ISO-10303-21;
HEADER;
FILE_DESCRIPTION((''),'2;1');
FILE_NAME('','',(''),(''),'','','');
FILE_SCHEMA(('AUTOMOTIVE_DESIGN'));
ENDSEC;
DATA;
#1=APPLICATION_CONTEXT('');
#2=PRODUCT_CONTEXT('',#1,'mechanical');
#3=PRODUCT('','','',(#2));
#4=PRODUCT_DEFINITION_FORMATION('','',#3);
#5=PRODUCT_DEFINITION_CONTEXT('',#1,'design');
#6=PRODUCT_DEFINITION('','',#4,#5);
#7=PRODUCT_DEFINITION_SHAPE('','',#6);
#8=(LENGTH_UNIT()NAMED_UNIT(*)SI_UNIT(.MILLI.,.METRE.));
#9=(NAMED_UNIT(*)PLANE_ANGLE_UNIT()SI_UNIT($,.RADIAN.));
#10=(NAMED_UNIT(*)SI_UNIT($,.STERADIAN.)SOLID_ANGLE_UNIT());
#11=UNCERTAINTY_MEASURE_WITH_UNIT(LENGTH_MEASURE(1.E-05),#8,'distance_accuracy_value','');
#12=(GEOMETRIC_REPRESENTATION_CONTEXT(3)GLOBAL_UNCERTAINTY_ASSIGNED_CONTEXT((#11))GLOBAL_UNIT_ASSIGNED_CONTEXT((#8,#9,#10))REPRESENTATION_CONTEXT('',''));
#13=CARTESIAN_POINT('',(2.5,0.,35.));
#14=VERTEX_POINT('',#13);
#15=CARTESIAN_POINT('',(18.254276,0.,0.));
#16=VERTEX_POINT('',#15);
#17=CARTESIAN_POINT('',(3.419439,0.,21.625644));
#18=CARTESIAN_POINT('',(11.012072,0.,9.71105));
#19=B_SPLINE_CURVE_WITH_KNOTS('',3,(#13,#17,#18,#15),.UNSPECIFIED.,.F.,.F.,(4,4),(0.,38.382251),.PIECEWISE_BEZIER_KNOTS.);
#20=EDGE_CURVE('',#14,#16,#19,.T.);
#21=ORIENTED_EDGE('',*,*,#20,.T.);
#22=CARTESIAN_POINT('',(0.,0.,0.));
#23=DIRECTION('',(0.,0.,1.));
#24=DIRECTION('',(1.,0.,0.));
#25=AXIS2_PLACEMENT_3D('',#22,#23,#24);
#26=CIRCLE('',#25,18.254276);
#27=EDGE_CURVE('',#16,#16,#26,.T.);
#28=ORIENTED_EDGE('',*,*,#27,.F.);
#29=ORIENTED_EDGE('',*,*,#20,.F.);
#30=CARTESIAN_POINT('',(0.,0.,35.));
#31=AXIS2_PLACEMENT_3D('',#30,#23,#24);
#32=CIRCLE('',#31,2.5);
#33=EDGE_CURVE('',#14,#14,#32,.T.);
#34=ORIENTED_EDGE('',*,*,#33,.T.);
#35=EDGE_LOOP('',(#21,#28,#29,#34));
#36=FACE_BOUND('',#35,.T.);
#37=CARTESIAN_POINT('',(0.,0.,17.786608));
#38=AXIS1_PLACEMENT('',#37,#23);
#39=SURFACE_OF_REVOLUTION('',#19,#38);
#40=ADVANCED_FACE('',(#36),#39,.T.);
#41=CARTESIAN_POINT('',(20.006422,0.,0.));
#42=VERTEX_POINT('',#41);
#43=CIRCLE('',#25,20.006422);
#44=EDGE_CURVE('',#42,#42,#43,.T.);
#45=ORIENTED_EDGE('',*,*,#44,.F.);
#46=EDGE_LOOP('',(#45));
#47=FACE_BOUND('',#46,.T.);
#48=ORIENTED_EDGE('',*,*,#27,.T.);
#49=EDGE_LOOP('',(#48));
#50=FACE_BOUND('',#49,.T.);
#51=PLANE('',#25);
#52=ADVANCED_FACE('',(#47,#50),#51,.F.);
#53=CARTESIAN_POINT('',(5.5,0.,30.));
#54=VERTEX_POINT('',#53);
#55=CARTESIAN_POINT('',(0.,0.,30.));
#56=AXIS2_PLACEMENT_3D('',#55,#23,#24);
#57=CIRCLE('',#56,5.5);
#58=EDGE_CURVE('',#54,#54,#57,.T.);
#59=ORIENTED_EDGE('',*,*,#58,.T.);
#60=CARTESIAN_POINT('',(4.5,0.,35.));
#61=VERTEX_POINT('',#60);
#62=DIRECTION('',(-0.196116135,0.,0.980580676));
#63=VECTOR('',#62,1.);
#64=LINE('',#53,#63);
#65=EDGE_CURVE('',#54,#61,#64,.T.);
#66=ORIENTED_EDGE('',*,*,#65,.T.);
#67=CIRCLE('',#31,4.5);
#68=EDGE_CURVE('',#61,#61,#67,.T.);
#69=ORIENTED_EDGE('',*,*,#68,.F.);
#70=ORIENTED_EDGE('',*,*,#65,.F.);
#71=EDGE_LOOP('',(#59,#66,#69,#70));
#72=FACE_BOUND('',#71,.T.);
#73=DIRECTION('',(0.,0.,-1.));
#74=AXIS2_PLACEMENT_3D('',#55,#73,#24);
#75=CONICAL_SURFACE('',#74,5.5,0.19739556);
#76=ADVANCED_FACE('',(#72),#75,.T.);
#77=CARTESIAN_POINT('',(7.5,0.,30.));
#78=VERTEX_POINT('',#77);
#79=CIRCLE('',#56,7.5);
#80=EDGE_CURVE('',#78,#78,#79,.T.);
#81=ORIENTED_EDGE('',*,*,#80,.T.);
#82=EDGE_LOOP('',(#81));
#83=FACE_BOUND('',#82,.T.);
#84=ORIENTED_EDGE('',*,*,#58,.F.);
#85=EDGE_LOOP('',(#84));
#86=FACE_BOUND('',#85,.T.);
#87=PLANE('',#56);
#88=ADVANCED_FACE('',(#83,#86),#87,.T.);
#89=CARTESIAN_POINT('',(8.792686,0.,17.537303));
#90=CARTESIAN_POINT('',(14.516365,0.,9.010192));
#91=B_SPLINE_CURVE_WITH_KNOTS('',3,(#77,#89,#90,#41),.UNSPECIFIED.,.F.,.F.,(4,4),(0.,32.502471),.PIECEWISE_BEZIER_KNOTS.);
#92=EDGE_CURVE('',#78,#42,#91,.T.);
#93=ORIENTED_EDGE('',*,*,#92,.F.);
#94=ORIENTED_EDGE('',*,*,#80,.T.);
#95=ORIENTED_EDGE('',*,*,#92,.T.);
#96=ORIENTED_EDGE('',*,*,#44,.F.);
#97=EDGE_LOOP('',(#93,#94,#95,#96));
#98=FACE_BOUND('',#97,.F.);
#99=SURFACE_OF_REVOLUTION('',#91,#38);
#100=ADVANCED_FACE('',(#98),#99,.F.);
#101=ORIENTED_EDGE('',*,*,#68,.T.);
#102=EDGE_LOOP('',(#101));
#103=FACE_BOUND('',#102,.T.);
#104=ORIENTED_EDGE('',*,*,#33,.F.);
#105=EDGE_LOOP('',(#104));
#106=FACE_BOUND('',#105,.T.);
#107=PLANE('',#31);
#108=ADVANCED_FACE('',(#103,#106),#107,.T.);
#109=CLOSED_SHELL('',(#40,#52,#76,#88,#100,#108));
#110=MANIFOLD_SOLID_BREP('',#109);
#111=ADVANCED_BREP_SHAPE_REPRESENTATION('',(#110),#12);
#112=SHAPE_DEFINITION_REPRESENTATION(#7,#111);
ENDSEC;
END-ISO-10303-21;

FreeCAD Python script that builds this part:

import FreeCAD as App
import Part
import Sketcher

doc = App.newDocument("Part")
body = doc.addObject("PartDesign::Body", "Body")

# Sketch on XZ plane
sketch1 = body.newObject("Sketcher::SketchObject", "Sketch")
sketch1.AttachmentSupport = (doc.getObject("XZ_Plane"), [""])
sketch1.MapMode = "FlatFace"
sketch1.addGeometry(Part.BSplineCurve([App.Vector(7.5, 30, 0), App.Vector(8.792686, 17.537303, 0), App.Vector(14.516365, 9.010192, 0), App.Vector(20.006422, 0, 0)], [4, 4], [0, 32.502471], False, 3, [1, 1, 1, 1], False), False)
sketch1.addGeometry(Part.LineSegment(App.Vector(7.5, 30, 0), App.Vector(5.5, 30, 0)), False)
sketch1.addGeometry(Part.LineSegment(App.Vector(5.5, 30, 0), App.Vector(4.5, 35, 0)), False)
sketch1.addGeometry(Part.LineSegment(App.Vector(4.5, 35, 0), App.Vector(2.5, 35, 0)), False)
sketch1.addGeometry(Part.BSplineCurve([App.Vector(2.5, 35, 0), App.Vector(3.419439, 21.625644, 0), App.Vector(11.012072, 9.71105, 0), App.Vector(18.254276, 0, 0)], [4, 4], [0, 38.382251], False, 3, [1, 1, 1, 1], False), False)
sketch1.addGeometry(Part.LineSegment(App.Vector(18.254276, 0, 0), App.Vector(20.006422, 0, 0)), False)
sketch1.addConstraint(Sketcher.Constraint("Block", 0))
sketch1.addConstraint(Sketcher.Constraint("Block", 4))
sketch1.addConstraint(Sketcher.Constraint("Coincident", 0, 1, 1, 1))
sketch1.addConstraint(Sketcher.Constraint("Coincident", 1, 2, 2, 1))
sketch1.addConstraint(Sketcher.Constraint("Coincident", 2, 2, 3, 1))
sketch1.addConstraint(Sketcher.Constraint("Coincident", 3, 2, 4, 1))
sketch1.addConstraint(Sketcher.Constraint("Coincident", 4, 2, 5, 1))
sketch1.addConstraint(Sketcher.Constraint("Coincident", 5, 2, 0, 2))
sketch1.addConstraint(Sketcher.Constraint("Horizontal", 1))
sketch1.addConstraint(Sketcher.Constraint("Horizontal", 3))
sketch1.addConstraint(Sketcher.Constraint("Equal", 1, 3))
sketch1.addConstraint(Sketcher.Constraint("DistanceX", 1, 2, 1, 1, 2.0))
revolution = body.newObject("PartDesign::Revolution", "Revolution")
revolution.Profile = sketch1
revolution.ReferenceAxis = (sketch1, ["V_Axis"])
revolution.Angle = 360

doc.recompute()
